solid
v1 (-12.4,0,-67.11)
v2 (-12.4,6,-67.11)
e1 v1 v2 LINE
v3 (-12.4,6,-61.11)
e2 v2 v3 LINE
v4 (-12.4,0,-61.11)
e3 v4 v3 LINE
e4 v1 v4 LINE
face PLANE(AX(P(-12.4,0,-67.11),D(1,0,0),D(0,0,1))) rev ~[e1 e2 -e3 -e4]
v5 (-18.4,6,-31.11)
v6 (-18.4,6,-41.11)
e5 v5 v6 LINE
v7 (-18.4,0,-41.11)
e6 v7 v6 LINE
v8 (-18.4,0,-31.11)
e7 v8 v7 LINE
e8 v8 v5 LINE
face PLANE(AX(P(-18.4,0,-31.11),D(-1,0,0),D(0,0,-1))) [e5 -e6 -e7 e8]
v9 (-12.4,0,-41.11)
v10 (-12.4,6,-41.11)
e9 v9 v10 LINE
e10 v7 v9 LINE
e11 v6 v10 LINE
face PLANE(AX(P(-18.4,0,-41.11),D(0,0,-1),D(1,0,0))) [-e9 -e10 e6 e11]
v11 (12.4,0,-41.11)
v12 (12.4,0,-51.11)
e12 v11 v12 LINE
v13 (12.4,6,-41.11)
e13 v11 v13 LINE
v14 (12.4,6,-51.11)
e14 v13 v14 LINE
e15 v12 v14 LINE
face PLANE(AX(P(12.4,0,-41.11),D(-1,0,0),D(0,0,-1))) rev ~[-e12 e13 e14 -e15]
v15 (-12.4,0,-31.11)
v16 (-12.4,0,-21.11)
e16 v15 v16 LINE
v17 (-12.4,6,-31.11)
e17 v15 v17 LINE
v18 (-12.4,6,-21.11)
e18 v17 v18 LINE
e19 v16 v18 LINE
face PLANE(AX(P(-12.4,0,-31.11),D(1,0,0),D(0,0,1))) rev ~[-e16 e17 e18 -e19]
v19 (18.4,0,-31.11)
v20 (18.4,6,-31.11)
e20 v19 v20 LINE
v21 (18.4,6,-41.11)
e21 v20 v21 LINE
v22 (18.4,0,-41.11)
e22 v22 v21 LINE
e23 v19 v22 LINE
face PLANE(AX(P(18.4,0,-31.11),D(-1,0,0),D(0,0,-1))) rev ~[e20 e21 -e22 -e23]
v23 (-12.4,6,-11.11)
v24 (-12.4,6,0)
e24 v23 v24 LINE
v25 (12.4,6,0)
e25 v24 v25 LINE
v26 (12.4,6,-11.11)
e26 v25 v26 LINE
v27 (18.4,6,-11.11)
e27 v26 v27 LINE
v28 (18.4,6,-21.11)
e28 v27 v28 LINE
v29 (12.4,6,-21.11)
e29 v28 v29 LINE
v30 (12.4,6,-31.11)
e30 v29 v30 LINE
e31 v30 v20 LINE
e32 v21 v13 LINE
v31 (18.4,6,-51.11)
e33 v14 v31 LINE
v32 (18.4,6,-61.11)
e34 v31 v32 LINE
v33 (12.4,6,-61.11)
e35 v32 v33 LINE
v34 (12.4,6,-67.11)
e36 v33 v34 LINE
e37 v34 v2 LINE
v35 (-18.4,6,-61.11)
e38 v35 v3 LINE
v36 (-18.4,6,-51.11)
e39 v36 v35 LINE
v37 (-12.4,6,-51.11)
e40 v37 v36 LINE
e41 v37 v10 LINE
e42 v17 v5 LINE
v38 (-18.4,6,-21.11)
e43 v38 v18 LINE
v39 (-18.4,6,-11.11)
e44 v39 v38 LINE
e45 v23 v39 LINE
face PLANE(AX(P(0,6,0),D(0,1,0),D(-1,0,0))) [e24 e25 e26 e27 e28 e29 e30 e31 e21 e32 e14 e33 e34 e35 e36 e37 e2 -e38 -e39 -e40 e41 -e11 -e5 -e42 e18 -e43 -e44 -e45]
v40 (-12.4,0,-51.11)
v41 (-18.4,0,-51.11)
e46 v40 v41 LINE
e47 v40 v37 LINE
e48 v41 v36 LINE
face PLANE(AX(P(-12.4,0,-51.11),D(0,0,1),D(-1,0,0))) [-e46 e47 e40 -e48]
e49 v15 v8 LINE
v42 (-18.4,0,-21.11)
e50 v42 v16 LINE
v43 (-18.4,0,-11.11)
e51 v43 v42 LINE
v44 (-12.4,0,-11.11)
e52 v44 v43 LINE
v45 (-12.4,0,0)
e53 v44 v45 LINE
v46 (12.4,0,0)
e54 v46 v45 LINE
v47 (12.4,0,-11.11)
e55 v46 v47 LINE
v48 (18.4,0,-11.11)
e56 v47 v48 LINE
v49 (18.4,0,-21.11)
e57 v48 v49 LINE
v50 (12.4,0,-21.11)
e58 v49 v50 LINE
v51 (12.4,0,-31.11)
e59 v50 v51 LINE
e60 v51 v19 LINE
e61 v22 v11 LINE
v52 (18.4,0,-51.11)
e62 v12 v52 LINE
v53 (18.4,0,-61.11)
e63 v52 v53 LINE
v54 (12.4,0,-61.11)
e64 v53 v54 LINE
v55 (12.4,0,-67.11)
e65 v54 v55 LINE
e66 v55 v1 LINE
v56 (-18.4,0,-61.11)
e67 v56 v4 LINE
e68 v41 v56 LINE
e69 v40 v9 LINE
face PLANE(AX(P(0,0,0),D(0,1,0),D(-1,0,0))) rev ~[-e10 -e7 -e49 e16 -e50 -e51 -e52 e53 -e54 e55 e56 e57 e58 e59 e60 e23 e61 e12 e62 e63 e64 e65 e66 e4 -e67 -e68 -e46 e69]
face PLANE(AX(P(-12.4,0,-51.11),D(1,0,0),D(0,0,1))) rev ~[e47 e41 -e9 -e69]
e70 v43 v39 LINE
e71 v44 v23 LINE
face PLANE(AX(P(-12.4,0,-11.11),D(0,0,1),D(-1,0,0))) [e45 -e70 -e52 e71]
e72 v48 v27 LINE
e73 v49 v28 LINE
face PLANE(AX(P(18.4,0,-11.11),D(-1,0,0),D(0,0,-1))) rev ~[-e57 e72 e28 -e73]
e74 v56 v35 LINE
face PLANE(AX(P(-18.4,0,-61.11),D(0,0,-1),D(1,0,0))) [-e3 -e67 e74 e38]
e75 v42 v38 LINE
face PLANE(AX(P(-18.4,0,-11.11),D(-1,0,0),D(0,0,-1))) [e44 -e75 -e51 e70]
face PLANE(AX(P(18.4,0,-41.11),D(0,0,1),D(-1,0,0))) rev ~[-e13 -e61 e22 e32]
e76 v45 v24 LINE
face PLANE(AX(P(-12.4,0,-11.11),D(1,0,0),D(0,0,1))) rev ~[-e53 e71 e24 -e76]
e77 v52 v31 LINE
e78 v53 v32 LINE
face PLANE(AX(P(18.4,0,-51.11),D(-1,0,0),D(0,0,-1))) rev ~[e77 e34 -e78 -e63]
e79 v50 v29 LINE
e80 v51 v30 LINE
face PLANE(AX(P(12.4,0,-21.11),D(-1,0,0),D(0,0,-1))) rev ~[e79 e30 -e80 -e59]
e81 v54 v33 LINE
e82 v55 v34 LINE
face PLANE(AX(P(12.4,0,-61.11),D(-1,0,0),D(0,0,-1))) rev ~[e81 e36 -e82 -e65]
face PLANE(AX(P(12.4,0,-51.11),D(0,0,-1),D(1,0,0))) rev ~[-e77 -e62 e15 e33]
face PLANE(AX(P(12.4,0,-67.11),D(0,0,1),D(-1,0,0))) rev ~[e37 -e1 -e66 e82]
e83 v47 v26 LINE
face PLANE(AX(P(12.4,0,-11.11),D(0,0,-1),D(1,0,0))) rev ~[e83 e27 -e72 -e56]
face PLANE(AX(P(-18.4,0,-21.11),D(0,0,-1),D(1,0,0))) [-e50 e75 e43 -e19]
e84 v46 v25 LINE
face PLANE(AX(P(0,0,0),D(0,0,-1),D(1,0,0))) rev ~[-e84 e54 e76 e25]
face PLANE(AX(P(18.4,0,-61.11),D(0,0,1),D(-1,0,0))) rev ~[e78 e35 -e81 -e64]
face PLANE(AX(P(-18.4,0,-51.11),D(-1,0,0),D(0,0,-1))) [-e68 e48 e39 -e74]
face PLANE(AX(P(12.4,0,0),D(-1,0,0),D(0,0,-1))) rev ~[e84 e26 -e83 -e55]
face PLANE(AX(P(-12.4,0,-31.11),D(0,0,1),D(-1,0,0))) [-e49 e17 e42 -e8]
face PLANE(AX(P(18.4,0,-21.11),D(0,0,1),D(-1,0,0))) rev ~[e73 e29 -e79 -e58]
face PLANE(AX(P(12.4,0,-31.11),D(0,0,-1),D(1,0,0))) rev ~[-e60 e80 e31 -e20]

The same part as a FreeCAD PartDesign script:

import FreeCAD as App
import Part
import Sketcher
Q = App.Units.Quantity

doc = App.newDocument("Part")
body = doc.addObject("PartDesign::Body", "Body")

sketch1 = body.newObject("Sketcher::SketchObject", "Sketch")
sketch1.AttachmentSupport = (doc.getObject("XZ_Plane"), [""])
sketch1.MapMode = "FlatFace"
sketch1.addGeometry([
    Part.LineSegment(App.Vector(-12, -61, 0), App.Vector(-18, -61, 0)),
    Part.LineSegment(App.Vector(-18, -61, 0), App.Vector(-18, -51, 0)),
    Part.LineSegment(App.Vector(-18, -51, 0), App.Vector(-12, -51, 0)),
    Part.LineSegment(App.Vector(-12, -51, 0), App.Vector(-12, -41, 0)),
    Part.LineSegment(App.Vector(-12, -41, 0), App.Vector(-18, -41, 0)),
    Part.LineSegment(App.Vector(-18, -41, 0), App.Vector(-18, -31, 0)),
    Part.LineSegment(App.Vector(-18, -31, 0), App.Vector(-12, -31, 0)),
    Part.LineSegment(App.Vector(-12, -31, 0), App.Vector(-12, -21, 0)),
    Part.LineSegment(App.Vector(-12, -21, 0), App.Vector(-18, -21, 0)),
    Part.LineSegment(App.Vector(-18, -21, 0), App.Vector(-18, -11, 0)),
    Part.LineSegment(App.Vector(-18, -11, 0), App.Vector(-12, -11, 0)),
    Part.LineSegment(App.Vector(-12, -11, 0), App.Vector(-12, 0, 0)),
    Part.LineSegment(App.Vector(-12, 0, 0), App.Vector(12, 0, 0)),
    Part.LineSegment(App.Vector(12, 0, 0), App.Vector(12, -11, 0)),
    Part.LineSegment(App.Vector(12, -11, 0), App.Vector(18, -11, 0)),
    Part.LineSegment(App.Vector(18, -11, 0), App.Vector(18, -21, 0)),
    Part.LineSegment(App.Vector(18, -21, 0), App.Vector(12, -21, 0)),
    Part.LineSegment(App.Vector(12, -21, 0), App.Vector(12, -31, 0)),
    Part.LineSegment(App.Vector(12, -31, 0), App.Vector(18, -31, 0)),
    Part.LineSegment(App.Vector(18, -31, 0), App.Vector(18, -41, 0)),
    Part.LineSegment(App.Vector(18, -41, 0), App.Vector(12, -41, 0)),
    Part.LineSegment(App.Vector(12, -41, 0), App.Vector(12, -51, 0)),
    Part.LineSegment(App.Vector(12, -51, 0), App.Vector(18, -51, 0)),
    Part.LineSegment(App.Vector(18, -51, 0), App.Vector(18, -61, 0)),
    Part.LineSegment(App.Vector(18, -61, 0), App.Vector(12, -61, 0)),
    Part.LineSegment(App.Vector(12, -61, 0), App.Vector(12, -67, 0)),
    Part.LineSegment(App.Vector(12, -67, 0), App.Vector(-12, -67, 0)),
    Part.LineSegment(App.Vector(-12, -67, 0), App.Vector(-12, -61, 0)),
], False)
sketch1.addConstraint([
    Sketcher.Constraint("Coincident", 0, 2, 1, 1),
    Sketcher.Constraint("Coincident", 1, 2, 2, 1),
    Sketcher.Constraint("Coincident", 2, 2, 3, 1),
    Sketcher.Constraint("Coincident", 3, 2, 4, 1),
    Sketcher.Constraint("Coincident", 4, 2, 5, 1),
    Sketcher.Constraint("Coincident", 5, 2, 6, 1),
    Sketcher.Constraint("Coincident", 6, 2, 7, 1),
    Sketcher.Constraint("Coincident", 7, 2, 8, 1),
    Sketcher.Constraint("Coincident", 8, 2, 9, 1),
    Sketcher.Constraint("Coincident", 9, 2, 10, 1),
    Sketcher.Constraint("Coincident", 10, 2, 11, 1),
    Sketcher.Constraint("Coincident", 11, 2, 12, 1),
    Sketcher.Constraint("Coincident", 12, 2, 13, 1),
    Sketcher.Constraint("Coincident", 13, 2, 14, 1),
    Sketcher.Constraint("Coincident", 14, 2, 15, 1),
    Sketcher.Constraint("Coincident", 15, 2, 16, 1),
    Sketcher.Constraint("Coincident", 16, 2, 17, 1),
    Sketcher.Constraint("Coincident", 17, 2, 18, 1),
    Sketcher.Constraint("Coincident", 18, 2, 19, 1),
    Sketcher.Constraint("Coincident", 19, 2, 20, 1),
    Sketcher.Constraint("Coincident", 20, 2, 21, 1),
    Sketcher.Constraint("Coincident", 21, 2, 22, 1),
    Sketcher.Constraint("Coincident", 22, 2, 23, 1),
    Sketcher.Constraint("Coincident", 23, 2, 24, 1),
    Sketcher.Constraint("Coincident", 24, 2, 25, 1),
    Sketcher.Constraint("Coincident", 25, 2, 26, 1),
    Sketcher.Constraint("Coincident", 26, 2, 27, 1),
    Sketcher.Constraint("Coincident", 27, 2, 0, 1),
    Sketcher.Constraint("Horizontal", 0),
    Sketcher.Constraint("Vertical", 1),
    Sketcher.Constraint("Horizontal", 2),
    Sketcher.Constraint("Vertical", 3),
    Sketcher.Constraint("Horizontal", 4),
    Sketcher.Constraint("Vertical", 5),
    Sketcher.Constraint("Horizontal", 6),
    Sketcher.Constraint("Vertical", 7),
    Sketcher.Constraint("Horizontal", 8),
    Sketcher.Constraint("Vertical", 9),
    Sketcher.Constraint("Horizontal", 10),
    Sketcher.Constraint("Vertical", 11),
    Sketcher.Constraint("Horizontal", 12),
    Sketcher.Constraint("Vertical", 13),
    Sketcher.Constraint("Horizontal", 14),
    Sketcher.Constraint("Vertical", 15),
    Sketcher.Constraint("Horizontal", 16),
    Sketcher.Constraint("Vertical", 17),
    Sketcher.Constraint("Horizontal", 18),
    Sketcher.Constraint("Vertical", 19),
    Sketcher.Constraint("Horizontal", 20),
    Sketcher.Constraint("Vertical", 21),
    Sketcher.Constraint("Horizontal", 22),
    Sketcher.Constraint("Vertical", 23),
    Sketcher.Constraint("Horizontal", 24),
    Sketcher.Constraint("Vertical", 25),
    Sketcher.Constraint("Horizontal", 26),
    Sketcher.Constraint("Vertical", 27),
    Sketcher.Constraint("Symmetric", 11, 2, 12, 2, -1, 1),
    Sketcher.Constraint("Symmetric", 9, 2, 14, 2, -2),
    Sketcher.Constraint("Symmetric", 7, 2, 16, 2, -2),
    Sketcher.Constraint("Symmetric", 5, 2, 18, 2, -2),
    Sketcher.Constraint("Symmetric", 3, 2, 20, 2, -2),
    Sketcher.Constraint("Symmetric", 1, 2, 22, 2, -2),
    Sketcher.Constraint("Symmetric", 24, 2, 27, 2, -2),
    Sketcher.Constraint("Vertical", 1, 2, 4, 2),
    Sketcher.Constraint("Vertical", 3, 2, 6, 2),
    Sketcher.Constraint("Vertical", 5, 2, 8, 2),
    Sketcher.Constraint("Vertical", 7, 2, 10, 2),
    Sketcher.Constraint("Vertical", 21, 2, 24, 2),
    Sketcher.Constraint("Equal", 1, 3),
    Sketcher.Constraint("Equal", 3, 5),
    Sketcher.Constraint("Equal", 5, 7),
    Sketcher.Constraint("Equal", 7, 9),
    Sketcher.Constraint("Equal", 24, 25),
    Sketcher.Constraint("DistanceX", 0, 2, 0, 1, Q("6 mm")),
    Sketcher.Constraint("DistanceY", 1, 1, 1, 2, Q("10 mm")),
    Sketcher.Constraint("DistanceX", 12, 1, 12, 2, Q("24.8 mm")),
    Sketcher.Constraint("DistanceY", 11, 1, 11, 2, Q("11.11 mm")),
])
pad1 = body.newObject("PartDesign::Pad", "Pad")
pad1.Profile = sketch1
pad1.Length = 6
pad1.Reversed = True

doc.recompute()
